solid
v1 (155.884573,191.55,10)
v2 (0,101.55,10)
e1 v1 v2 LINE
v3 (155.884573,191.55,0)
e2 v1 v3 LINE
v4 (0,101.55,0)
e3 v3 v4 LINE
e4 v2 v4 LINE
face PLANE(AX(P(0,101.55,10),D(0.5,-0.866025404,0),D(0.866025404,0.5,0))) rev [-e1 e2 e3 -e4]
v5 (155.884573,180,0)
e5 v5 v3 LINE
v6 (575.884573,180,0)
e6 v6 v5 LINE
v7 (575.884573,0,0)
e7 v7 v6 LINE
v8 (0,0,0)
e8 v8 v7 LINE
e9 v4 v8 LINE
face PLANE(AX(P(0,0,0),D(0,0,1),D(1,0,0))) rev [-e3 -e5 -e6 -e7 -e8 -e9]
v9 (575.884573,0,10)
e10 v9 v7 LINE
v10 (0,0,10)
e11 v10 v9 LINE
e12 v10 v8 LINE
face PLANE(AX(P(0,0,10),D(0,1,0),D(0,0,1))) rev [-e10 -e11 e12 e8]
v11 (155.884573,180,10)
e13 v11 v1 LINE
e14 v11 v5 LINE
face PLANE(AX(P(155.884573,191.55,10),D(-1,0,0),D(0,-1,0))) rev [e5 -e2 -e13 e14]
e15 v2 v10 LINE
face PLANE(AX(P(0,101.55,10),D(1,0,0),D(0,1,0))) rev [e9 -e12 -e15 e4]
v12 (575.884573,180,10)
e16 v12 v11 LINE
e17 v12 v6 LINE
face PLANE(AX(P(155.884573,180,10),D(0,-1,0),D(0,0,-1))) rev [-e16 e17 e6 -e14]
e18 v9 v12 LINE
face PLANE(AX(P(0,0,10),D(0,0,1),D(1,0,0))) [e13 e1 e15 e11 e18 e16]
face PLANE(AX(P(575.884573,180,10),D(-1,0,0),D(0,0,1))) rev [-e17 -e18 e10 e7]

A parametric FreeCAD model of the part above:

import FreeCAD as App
import Part
import Sketcher
Q = App.Units.Quantity


def add_polygon(sketch, points):
    """Adds a closed chain of lines whose ends are joined by coincident constraints."""
    first, n = sketch.GeometryCount, len(points)
    for a, b in zip(points, points[1:] + points[:1]):
        sketch.addGeometry(Part.LineSegment(App.Vector(*a, 0), App.Vector(*b, 0)), False)
    for i in range(n):
        sketch.addConstraint(Sketcher.Constraint("Coincident", first + i, 2, first + (i + 1) % n, 1))

doc = App.newDocument("Part")
body = doc.addObject("PartDesign::Body", "Body")

# Sketch on XY plane
sketch1 = doc.addObject("Sketcher::SketchObject", "Sketch")
body.addObject(sketch1)
sketch1.AttachmentSupport = (doc.XY_Plane, [""])
sketch1.MapMode = "FlatFace"
add_polygon(sketch1, [(155.884573, 191.55), (0, 101.55), (0, 0), (575.884573, 0), (575.884573, 180), (155.884573, 180)])  # lines 0-5
sketch1.addConstraint([
    Sketcher.Constraint("Vertical", 1),
    Sketcher.Constraint("Horizontal", 2),
    Sketcher.Constraint("Vertical", 3),
    Sketcher.Constraint("Horizontal", 4),
    Sketcher.Constraint("Vertical", 5),
    Sketcher.Constraint("Coincident", 1, 2, -1, 1),
    Sketcher.Constraint("DistanceX", 4, 2, 4, 1, Q("420 mm")),
    Sketcher.Constraint("DistanceY", 3, 1, 3, 2, Q("180 mm")),
    Sketcher.Constraint("Angle", 0, Q("-150 deg")),
    Sketcher.Constraint("Distance", 0, Q("180 mm")),
    Sketcher.Constraint("DistanceY", 1, 2, 1, 1, Q("101.55 mm")),
])
pad1 = doc.addObject("PartDesign::Pad", "Pad")
body.addObject(pad1)
pad1.Profile = sketch1
pad1.Length = 10

doc.recompute()
